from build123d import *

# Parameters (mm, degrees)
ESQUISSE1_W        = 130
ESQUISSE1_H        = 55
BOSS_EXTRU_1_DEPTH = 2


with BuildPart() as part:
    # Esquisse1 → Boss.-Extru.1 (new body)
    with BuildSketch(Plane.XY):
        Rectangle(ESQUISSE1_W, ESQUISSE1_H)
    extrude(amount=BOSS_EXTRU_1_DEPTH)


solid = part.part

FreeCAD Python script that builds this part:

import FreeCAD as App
import Part
import Sketcher
Q = App.Units.Quantity


def add_polygon(sketch, points):
    """Adds a closed chain of lines whose ends are joined by coincident constraints."""
    first, n = sketch.GeometryCount, len(points)
    for a, b in zip(points, points[1:] + points[:1]):
        sketch.addGeometry(Part.LineSegment(App.Vector(*a, 0), App.Vector(*b, 0)), False)
    for i in range(n):
        sketch.addConstraint(Sketcher.Constraint("Coincident", first + i, 2, first + (i + 1) % n, 1))

doc = App.newDocument("Part")
body = doc.addObject("PartDesign::Body", "Body")

sketch1 = body.newObject("Sketcher::SketchObject", "Sketch")
sketch1.AttachmentSupport = (doc.getObject("XY_Plane"), [""])
sketch1.MapMode = "FlatFace"
add_polygon(sketch1, [(-65, 28), (-65, -28), (65, -28), (65, 28)])
sketch1.addConstraint(Sketcher.Constraint("Vertical", 0))
sketch1.addConstraint(Sketcher.Constraint("Horizontal", 1))
sketch1.addConstraint(Sketcher.Constraint("Vertical", 2))
sketch1.addConstraint(Sketcher.Constraint("Horizontal", 3))
sketch1.addConstraint(Sketcher.Constraint("Symmetric", 0, 2, 2, 2, -1, 1))
sketch1.addConstraint(Sketcher.Constraint("DistanceX", 1, 1, 1, 2, Q("130 mm")))
sketch1.addConstraint(Sketcher.Constraint("DistanceY", 0, 2, 0, 1, Q("55 mm")))
pad1 = body.newObject("PartDesign::Pad", "Pad")
pad1.Profile = sketch1
pad1.Length = 2

doc.recompute()
